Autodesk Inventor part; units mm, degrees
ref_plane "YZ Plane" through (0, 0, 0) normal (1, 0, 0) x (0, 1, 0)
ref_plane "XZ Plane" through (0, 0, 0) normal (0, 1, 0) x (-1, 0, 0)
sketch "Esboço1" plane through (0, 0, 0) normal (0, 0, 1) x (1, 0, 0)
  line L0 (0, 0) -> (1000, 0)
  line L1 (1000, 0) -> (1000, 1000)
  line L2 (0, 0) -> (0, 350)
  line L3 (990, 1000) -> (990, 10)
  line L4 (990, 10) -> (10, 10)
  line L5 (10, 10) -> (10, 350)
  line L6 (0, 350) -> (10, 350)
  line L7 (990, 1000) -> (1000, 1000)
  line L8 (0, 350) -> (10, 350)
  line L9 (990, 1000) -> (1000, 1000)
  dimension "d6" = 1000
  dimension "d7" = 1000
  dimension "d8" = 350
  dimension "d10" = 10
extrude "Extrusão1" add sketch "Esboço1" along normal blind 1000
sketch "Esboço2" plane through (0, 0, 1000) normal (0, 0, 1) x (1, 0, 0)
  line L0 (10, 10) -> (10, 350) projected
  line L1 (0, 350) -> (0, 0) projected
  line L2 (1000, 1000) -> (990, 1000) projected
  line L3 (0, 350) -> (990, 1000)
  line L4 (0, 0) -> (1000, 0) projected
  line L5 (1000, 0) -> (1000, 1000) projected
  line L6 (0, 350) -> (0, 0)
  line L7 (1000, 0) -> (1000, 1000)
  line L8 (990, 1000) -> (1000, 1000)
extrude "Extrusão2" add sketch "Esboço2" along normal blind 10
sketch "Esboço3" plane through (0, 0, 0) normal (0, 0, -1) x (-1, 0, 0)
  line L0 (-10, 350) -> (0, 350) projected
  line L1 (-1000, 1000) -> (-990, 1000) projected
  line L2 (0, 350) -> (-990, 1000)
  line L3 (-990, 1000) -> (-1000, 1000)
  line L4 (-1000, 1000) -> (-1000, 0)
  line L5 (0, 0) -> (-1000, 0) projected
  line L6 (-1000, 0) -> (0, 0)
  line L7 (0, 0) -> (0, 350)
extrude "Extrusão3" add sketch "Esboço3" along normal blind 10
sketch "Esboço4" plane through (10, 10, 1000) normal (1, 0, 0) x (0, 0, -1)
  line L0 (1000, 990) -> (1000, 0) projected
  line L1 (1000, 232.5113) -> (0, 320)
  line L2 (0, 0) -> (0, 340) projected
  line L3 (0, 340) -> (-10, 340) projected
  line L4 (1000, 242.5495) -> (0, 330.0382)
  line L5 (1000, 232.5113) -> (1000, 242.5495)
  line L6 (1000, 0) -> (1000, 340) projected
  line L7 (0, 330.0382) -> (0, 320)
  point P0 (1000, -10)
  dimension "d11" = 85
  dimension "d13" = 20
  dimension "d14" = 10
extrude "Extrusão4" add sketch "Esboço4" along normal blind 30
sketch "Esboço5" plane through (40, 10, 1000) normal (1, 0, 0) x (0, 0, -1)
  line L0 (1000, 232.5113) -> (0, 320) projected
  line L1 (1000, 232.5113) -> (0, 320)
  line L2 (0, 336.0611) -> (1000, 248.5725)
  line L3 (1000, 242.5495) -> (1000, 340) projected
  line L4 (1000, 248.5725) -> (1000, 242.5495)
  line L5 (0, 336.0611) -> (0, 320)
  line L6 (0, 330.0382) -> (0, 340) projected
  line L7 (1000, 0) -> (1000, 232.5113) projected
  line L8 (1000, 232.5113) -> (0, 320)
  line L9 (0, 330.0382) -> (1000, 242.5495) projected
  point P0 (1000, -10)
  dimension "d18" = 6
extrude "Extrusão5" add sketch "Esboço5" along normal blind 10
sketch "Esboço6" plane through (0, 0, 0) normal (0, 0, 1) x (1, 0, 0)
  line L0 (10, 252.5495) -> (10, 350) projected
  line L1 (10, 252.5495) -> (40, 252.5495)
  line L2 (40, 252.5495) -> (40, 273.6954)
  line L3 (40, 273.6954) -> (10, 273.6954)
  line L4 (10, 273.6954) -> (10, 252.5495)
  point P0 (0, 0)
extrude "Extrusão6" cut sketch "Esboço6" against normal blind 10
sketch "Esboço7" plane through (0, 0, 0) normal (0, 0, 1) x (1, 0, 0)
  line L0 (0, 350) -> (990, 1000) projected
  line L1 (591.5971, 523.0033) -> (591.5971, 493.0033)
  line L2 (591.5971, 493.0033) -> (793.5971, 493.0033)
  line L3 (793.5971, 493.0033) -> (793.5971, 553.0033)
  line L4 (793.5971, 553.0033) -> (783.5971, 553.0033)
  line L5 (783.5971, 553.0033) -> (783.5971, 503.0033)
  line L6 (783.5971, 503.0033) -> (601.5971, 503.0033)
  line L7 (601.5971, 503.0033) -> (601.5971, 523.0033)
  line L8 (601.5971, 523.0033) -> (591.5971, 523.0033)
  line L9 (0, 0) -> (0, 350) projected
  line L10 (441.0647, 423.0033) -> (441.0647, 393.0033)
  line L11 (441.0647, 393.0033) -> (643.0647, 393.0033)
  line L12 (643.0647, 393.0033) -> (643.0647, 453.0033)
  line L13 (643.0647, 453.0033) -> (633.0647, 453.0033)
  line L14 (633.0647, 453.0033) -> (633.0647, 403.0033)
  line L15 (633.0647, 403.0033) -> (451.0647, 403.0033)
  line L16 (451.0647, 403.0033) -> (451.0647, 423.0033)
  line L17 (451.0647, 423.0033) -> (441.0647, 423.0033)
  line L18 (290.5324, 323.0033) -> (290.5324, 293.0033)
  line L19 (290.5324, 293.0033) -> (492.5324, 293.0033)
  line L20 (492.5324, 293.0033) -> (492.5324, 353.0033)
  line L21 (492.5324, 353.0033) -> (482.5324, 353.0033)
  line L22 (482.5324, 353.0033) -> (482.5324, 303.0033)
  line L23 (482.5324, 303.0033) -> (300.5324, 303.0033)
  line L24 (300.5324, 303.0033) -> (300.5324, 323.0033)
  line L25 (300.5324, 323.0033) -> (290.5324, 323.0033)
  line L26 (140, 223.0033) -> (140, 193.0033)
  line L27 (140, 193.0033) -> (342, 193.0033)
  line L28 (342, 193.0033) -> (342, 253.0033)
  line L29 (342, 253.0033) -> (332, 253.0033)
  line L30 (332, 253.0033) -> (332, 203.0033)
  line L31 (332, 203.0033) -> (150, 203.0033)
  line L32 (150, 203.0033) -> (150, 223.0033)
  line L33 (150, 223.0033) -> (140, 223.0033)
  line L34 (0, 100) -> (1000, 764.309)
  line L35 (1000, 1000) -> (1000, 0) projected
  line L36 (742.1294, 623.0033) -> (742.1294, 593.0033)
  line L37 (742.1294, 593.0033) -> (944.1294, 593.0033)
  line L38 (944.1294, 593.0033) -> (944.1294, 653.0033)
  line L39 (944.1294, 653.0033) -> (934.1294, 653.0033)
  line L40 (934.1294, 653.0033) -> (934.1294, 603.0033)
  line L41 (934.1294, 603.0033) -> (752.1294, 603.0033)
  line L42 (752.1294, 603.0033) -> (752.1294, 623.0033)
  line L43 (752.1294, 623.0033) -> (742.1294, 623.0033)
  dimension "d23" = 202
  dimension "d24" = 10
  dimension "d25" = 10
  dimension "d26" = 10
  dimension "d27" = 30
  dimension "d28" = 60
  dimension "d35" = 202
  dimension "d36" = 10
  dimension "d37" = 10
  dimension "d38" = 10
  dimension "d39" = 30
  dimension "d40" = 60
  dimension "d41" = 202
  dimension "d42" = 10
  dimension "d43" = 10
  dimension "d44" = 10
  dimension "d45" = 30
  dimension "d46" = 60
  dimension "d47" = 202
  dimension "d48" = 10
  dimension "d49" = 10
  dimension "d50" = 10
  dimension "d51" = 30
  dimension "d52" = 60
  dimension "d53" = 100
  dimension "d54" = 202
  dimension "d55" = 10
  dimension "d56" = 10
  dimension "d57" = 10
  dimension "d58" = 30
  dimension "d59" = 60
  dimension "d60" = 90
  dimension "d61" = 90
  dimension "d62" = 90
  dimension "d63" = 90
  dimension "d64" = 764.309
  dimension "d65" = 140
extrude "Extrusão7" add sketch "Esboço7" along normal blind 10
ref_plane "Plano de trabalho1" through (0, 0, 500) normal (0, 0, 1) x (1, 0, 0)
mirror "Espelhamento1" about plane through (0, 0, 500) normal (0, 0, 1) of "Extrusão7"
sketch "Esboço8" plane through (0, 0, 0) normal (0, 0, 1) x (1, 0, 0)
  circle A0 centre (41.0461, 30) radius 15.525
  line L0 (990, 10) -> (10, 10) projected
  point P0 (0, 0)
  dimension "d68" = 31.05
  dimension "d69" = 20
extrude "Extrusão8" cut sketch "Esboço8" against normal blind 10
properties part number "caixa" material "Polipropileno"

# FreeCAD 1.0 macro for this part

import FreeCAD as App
import Part
import Sketcher
Q = App.Units.Quantity


def add_polygon(sketch, points):
    """Adds a closed chain of lines whose ends are joined by coincident constraints."""
    first, n = sketch.GeometryCount, len(points)
    for a, b in zip(points, points[1:] + points[:1]):
        sketch.addGeometry(Part.LineSegment(App.Vector(*a, 0), App.Vector(*b, 0)), False)
    for i in range(n):
        sketch.addConstraint(Sketcher.Constraint("Coincident", first + i, 2, first + (i + 1) % n, 1))

doc = App.newDocument("Part")
body = doc.addObject("PartDesign::Body", "Body")

# Sketch on XY plane
sketch1 = body.newObject("Sketcher::SketchObject", "Sketch")
sketch1.AttachmentSupport = (doc.getObject("XY_Plane"), [""])
sketch1.MapMode = "FlatFace"
add_polygon(sketch1, [(0, 350), (0, 0), (1000, 0), (1000, 1000), (990, 1000), (990, 10), (10, 10), (10, 350)])  # lines 0-7
sketch1.addConstraint([
    Sketcher.Constraint("Vertical", 0),
    Sketcher.Constraint("Horizontal", 1),
    Sketcher.Constraint("Vertical", 2),
    Sketcher.Constraint("Horizontal", 3),
    Sketcher.Constraint("Vertical", 4),
    Sketcher.Constraint("Horizontal", 5),
    Sketcher.Constraint("Vertical", 6),
    Sketcher.Constraint("Horizontal", 7),
    Sketcher.Constraint("Coincident", 0, 2, -1, 1),
    Sketcher.Constraint("Equal", 3, 7),
    Sketcher.Constraint("Equal", 1, 2),
    Sketcher.Constraint("DistanceX", 1, 1, 1, 2, 1000.0),
    Sketcher.Constraint("DistanceX", 3, 2, 3, 1, 10.0),
    Sketcher.Constraint("DistanceY", 0, 2, 0, 1, 350.0),
    Sketcher.Constraint("DistanceY", -1, 1, 4, 2, 10.0),
])
pad1 = body.newObject("PartDesign::Pad", "Pad")
pad1.Profile = sketch1
pad1.Length = 1000

# Sketch on XY plane
sketch2 = body.newObject("Sketcher::SketchObject", "Sketch001")
sketch2.AttachmentSupport = (doc.getObject("XY_Plane"), [""])
sketch2.MapMode = "FlatFace"
sketch2.AttachmentOffset = App.Placement(App.Vector(0, 0, 1000), App.Rotation())
add_polygon(sketch2, [(990, 1000), (0, 350), (0, 0), (1000, 0), (1000, 1000)])  # lines 0-4
sketch2.addConstraint([
    Sketcher.Constraint("Vertical", 1),
    Sketcher.Constraint("Horizontal", 2),
    Sketcher.Constraint("Vertical", 3),
    Sketcher.Constraint("Horizontal", 4),
    Sketcher.Constraint("Coincident", 1, 2, -1, 1),
    Sketcher.Constraint("Equal", 2, 3),
    Sketcher.Constraint("DistanceX", 2, 1, 2, 2, 1000.0),
    Sketcher.Constraint("DistanceX", 4, 2, 4, 1, 10.0),
    Sketcher.Constraint("DistanceY", 1, 2, 1, 1, 350.0),
])
pad2 = body.newObject("PartDesign::Pad", "Pad001")
pad2.Profile = sketch2
pad2.Length = 10

# Sketch on XY plane
sketch3 = body.newObject("Sketcher::SketchObject", "Sketch002")
sketch3.AttachmentSupport = (doc.getObject("XY_Plane"), [""])
sketch3.MapMode = "FlatFace"
add_polygon(sketch3, [(990, 1000), (1000, 1000), (1000, 0), (0, 0), (0, 350)])  # lines 0-4
sketch3.addConstraint([
    Sketcher.Constraint("Horizontal", 0),
    Sketcher.Constraint("Vertical", 1),
    Sketcher.Constraint("Horizontal", 2),
    Sketcher.Constraint("Vertical", 3),
    Sketcher.Constraint("Coincident", 2, 2, -1, 1),
    Sketcher.Constraint("Equal", 2, 1),
    Sketcher.Constraint("DistanceX", 0, 1, 0, 2, 10.0),
    Sketcher.Constraint("DistanceX", 2, 2, 2, 1, 1000.0),
    Sketcher.Constraint("DistanceY", 3, 1, 3, 2, 350.0),
])
pad3 = body.newObject("PartDesign::Pad", "Pad002")
pad3.Profile = sketch3
pad3.Length = 10
pad3.Reversed = True

# Sketch on YZ plane
sketch4 = body.newObject("Sketcher::SketchObject", "Sketch003")
sketch4.AttachmentSupport = (doc.getObject("YZ_Plane"), [""])
sketch4.MapMode = "FlatFace"
sketch4.AttachmentOffset = App.Placement(App.Vector(0, 0, 10), App.Rotation())
add_polygon(sketch4, [(242.5113, 0), (252.5495, 0), (340.0382, 1000), (330, 1000)])  # lines 0-3
sketch4.addConstraint([
    Sketcher.Constraint("Horizontal", 0),
    Sketcher.Constraint("Horizontal", 2),
    Sketcher.Constraint("PointOnObject", 0, 2, -1),
    Sketcher.Constraint("Parallel", 1, 3),
    Sketcher.Constraint("Angle", 1, Q("85 deg")),
    Sketcher.Constraint("DistanceY", -1, 1, 1, 2, 1000.0),
    Sketcher.Constraint("DistanceX", -1, 1, 2, 2, 330.0),
    Sketcher.Constraint("DistanceX", 0, 1, 0, 2, 10.0382),
])
pad4 = body.newObject("PartDesign::Pad", "Pad003")
pad4.Profile = sketch4
pad4.Length = 30

# Sketch on YZ plane
sketch5 = body.newObject("Sketcher::SketchObject", "Sketch004")
sketch5.AttachmentSupport = (doc.getObject("YZ_Plane"), [""])
sketch5.MapMode = "FlatFace"
sketch5.AttachmentOffset = App.Placement(App.Vector(0, 0, 40), App.Rotation())
add_polygon(sketch5, [(258.5725, 0), (346.0611, 1000), (340.0382, 1000), (252.5495, 0)])  # lines 0-3
sketch5.addConstraint([
    Sketcher.Constraint("Horizontal", 1),
    Sketcher.Constraint("Horizontal", 3),
    Sketcher.Constraint("PointOnObject", 2, 2, -1),
    Sketcher.Constraint("Parallel", 0, 2),
    Sketcher.Constraint("Angle", 0, Q("85 deg")),
    Sketcher.Constraint("DistanceY", -1, 1, 0, 2, 1000.0),
    Sketcher.Constraint("DistanceX", 1, 2, 1, 1, 6.023),
    Sketcher.Constraint("DistanceX", -1, 1, 0, 2, 346.061),
])
pad5 = body.newObject("PartDesign::Pad", "Pad004")
pad5.Profile = sketch5
pad5.Length = 10

# Sketch on XY plane
sketch6 = body.newObject("Sketcher::SketchObject", "Sketch005")
sketch6.AttachmentSupport = (doc.getObject("XY_Plane"), [""])
sketch6.MapMode = "FlatFace"
add_polygon(sketch6, [(10, 273.6954), (10, 252.5495), (40, 252.5495), (40, 273.6954)])  # lines 0-3
sketch6.addConstraint([
    Sketcher.Constraint("Vertical", 0),
    Sketcher.Constraint("Horizontal", 1),
    Sketcher.Constraint("Vertical", 2),
    Sketcher.Constraint("Horizontal", 3),
    Sketcher.Constraint("DistanceX", 1, 1, 1, 2, 30.0),
    Sketcher.Constraint("DistanceX", -1, 1, 0, 2, 10.0),
    Sketcher.Constraint("DistanceY", 0, 2, 0, 1, 21.146),
    Sketcher.Constraint("DistanceY", -1, 1, 0, 2, 252.5495),
])
pocket1 = body.newObject("PartDesign::Pocket", "Pocket")
pocket1.Profile = sketch6
pocket1.Length = 10

# Sketch on XY plane
sketch7 = body.newObject("Sketcher::SketchObject", "Sketch006")
sketch7.AttachmentSupport = (doc.getObject("XY_Plane"), [""])
sketch7.MapMode = "FlatFace"
add_polygon(sketch7, [(601.5971, 523.0033), (591.5971, 523.0033), (591.5971, 493.0033), (793.5971, 493.0033), (793.5971, 553.0033), (783.5971, 553.0033), (783.5971, 503.0033), (601.5971, 503.0033)])  # lines 0-7
add_polygon(sketch7, [(742.1294, 623.0033), (742.1294, 593.0033), (944.1294, 593.0033), (944.1294, 653.0033), (934.1294, 653.0033), (934.1294, 603.0033), (752.1294, 603.0033), (752.1294, 623.0033)])  # lines 8-15
add_polygon(sketch7, [(332, 203.0033), (150, 203.0033), (150, 223.0033), (140, 223.0033), (140, 193.0033), (342, 193.0033), (342, 253.0033), (332, 253.0033)])  # lines 16-23
add_polygon(sketch7, [(482.5324, 303.0033), (300.5324, 303.0033), (300.5324, 323.0033), (290.5324, 323.0033), (290.5324, 293.0033), (492.5324, 293.0033), (492.5324, 353.0033), (482.5324, 353.0033)])  # lines 24-31
add_polygon(sketch7, [(633.0647, 403.0033), (451.0647, 403.0033), (451.0647, 423.0033), (441.0647, 423.0033), (441.0647, 393.0033), (643.0647, 393.0033), (643.0647, 453.0033), (633.0647, 453.0033)])  # lines 32-39
sketch7.addConstraint([
    Sketcher.Constraint("Horizontal", 0),
    Sketcher.Constraint("Vertical", 1),
    Sketcher.Constraint("Horizontal", 2),
    Sketcher.Constraint("Vertical", 3),
    Sketcher.Constraint("Horizontal", 4),
    Sketcher.Constraint("Vertical", 5),
    Sketcher.Constraint("Horizontal", 6),
    Sketcher.Constraint("Vertical", 7),
    Sketcher.Constraint("Vertical", 8),
    Sketcher.Constraint("Horizontal", 9),
    Sketcher.Constraint("Vertical", 10),
    Sketcher.Constraint("Horizontal", 11),
    Sketcher.Constraint("Vertical", 12),
    Sketcher.Constraint("Horizontal", 13),
    Sketcher.Constraint("Vertical", 14),
    Sketcher.Constraint("Horizontal", 15),
    Sketcher.Constraint("Horizontal", 16),
    Sketcher.Constraint("Vertical", 17),
    Sketcher.Constraint("Horizontal", 18),
    Sketcher.Constraint("Vertical", 19),
    Sketcher.Constraint("Horizontal", 20),
    Sketcher.Constraint("Vertical", 21),
    Sketcher.Constraint("Horizontal", 22),
    Sketcher.Constraint("Vertical", 23),
    Sketcher.Constraint("Horizontal", 24),
    Sketcher.Constraint("Vertical", 25),
    Sketcher.Constraint("Horizontal", 26),
    Sketcher.Constraint("Vertical", 27),
    Sketcher.Constraint("Horizontal", 28),
    Sketcher.Constraint("Vertical", 29),
    Sketcher.Constraint("Horizontal", 30),
    Sketcher.Constraint("Vertical", 31),
    Sketcher.Constraint("Horizontal", 32),
    Sketcher.Constraint("Vertical", 33),
    Sketcher.Constraint("Horizontal", 34),
    Sketcher.Constraint("Vertical", 35),
    Sketcher.Constraint("Horizontal", 36),
    Sketcher.Constraint("Vertical", 37),
    Sketcher.Constraint("Horizontal", 38),
    Sketcher.Constraint("Vertical", 39),
    Sketcher.Constraint("Equal", 0, 4),
    Sketcher.Constraint("Equal", 2, 9),
    Sketcher.Constraint("Equal", 4, 11),
    Sketcher.Constraint("Equal", 6, 13),
    Sketcher.Constraint("Equal", 13, 16),
    Sketcher.Constraint("Equal", 15, 18),
    Sketcher.Constraint("Equal", 9, 20),
    Sketcher.Constraint("Equal", 16, 24),
    Sketcher.Constraint("Equal", 22, 26),
    Sketcher.Constraint("Equal", 20, 28),
    Sketcher.Constraint("Equal", 24, 32),
    Sketcher.Constraint("Equal", 30, 34),
    Sketcher.Constraint("Equal", 28, 36),
    Sketcher.Constraint("Equal", 1, 8),
    Sketcher.Constraint("Equal", 3, 10),
    Sketcher.Constraint("Equal", 5, 12),
    Sketcher.Constraint("Equal", 14, 17),
    Sketcher.Constraint("Equal", 8, 19),
    Sketcher.Constraint("Equal", 10, 21),
    Sketcher.Constraint("Equal", 17, 25),
    Sketcher.Constraint("Equal", 19, 27),
    Sketcher.Constraint("Equal", 21, 29),
    Sketcher.Constraint("Equal", 25, 33),
    Sketcher.Constraint("Equal", 27, 35),
    Sketcher.Constraint("Equal", 29, 37),
    Sketcher.Constraint("DistanceX", 0, 2, 0, 1, 10.0),
    Sketcher.Constraint("DistanceX", 2, 1, 2, 2, 202.0),
    Sketcher.Constraint("DistanceY", 1, 2, 1, 1, 30.0),
    Sketcher.Constraint("DistanceY", 3, 1, 3, 2, 60.0),
    Sketcher.Constraint("DistanceX", -1, 1, 18, 2, 140.0),
    Sketcher.Constraint("DistanceY", 2, 2, 5, 2, 10.0),
    Sketcher.Constraint("DistanceY", 5, 2, 8, 2, 90.0),
    Sketcher.Constraint("DistanceY", 23, 2, 24, 2, 100.0),
    Sketcher.Constraint("DistanceY", 29, 2, 1, 2, 140.0),
    Sketcher.Constraint("DistanceY", 31, 2, 32, 2, 100.0),
    Sketcher.Constraint("DistanceX", -1, 1, 0, 2, 591.597),
    Sketcher.Constraint("DistanceY", -1, 1, 0, 2, 523.0033),
    Sketcher.Constraint("DistanceX", -1, 1, 8, 2, 742.1294),
    Sketcher.Constraint("DistanceX", -1, 1, 24, 2, 300.5324),
    Sketcher.Constraint("DistanceX", -1, 1, 32, 2, 451.0647),
])
pad6 = body.newObject("PartDesign::Pad", "Pad005")
pad6.Profile = sketch7
pad6.Length = 10
doc.recompute()

datumplane = body.newObject("PartDesign::Plane", "DatumPlane")
datumplane.AttachmentSupport = (doc.getObject("XY_Plane"), [""])
datumplane.MapMode = "FlatFace"
datumplane.AttachmentOffset = App.Placement(App.Vector(0, 0, 500), App.Rotation())
mirrored = body.newObject("PartDesign::Mirrored", "Mirrored")
mirrored.Originals = [pad6]
mirrored.MirrorPlane = (datumplane, [""])
body.Tip = mirrored

# Sketch on XY plane
sketch8 = body.newObject("Sketcher::SketchObject", "Sketch007")
sketch8.AttachmentSupport = (doc.getObject("XY_Plane"), [""])
sketch8.MapMode = "FlatFace"
sketch8.addGeometry(Part.Circle(App.Vector(41.0461, 30, 0), App.Vector(0, 0, 1), 15.525), False)
sketch8.addConstraint([
    Sketcher.Constraint("Diameter", 0, 31.05),
    Sketcher.Constraint("DistanceY", -1, 1, 0, 3, 30.0),
    Sketcher.Constraint("DistanceX", -1, 1, 0, 3, 41.046),
])
pocket2 = body.newObject("PartDesign::Pocket", "Pocket001")
pocket2.Profile = sketch8
pocket2.Length = 10

doc.recompute()
